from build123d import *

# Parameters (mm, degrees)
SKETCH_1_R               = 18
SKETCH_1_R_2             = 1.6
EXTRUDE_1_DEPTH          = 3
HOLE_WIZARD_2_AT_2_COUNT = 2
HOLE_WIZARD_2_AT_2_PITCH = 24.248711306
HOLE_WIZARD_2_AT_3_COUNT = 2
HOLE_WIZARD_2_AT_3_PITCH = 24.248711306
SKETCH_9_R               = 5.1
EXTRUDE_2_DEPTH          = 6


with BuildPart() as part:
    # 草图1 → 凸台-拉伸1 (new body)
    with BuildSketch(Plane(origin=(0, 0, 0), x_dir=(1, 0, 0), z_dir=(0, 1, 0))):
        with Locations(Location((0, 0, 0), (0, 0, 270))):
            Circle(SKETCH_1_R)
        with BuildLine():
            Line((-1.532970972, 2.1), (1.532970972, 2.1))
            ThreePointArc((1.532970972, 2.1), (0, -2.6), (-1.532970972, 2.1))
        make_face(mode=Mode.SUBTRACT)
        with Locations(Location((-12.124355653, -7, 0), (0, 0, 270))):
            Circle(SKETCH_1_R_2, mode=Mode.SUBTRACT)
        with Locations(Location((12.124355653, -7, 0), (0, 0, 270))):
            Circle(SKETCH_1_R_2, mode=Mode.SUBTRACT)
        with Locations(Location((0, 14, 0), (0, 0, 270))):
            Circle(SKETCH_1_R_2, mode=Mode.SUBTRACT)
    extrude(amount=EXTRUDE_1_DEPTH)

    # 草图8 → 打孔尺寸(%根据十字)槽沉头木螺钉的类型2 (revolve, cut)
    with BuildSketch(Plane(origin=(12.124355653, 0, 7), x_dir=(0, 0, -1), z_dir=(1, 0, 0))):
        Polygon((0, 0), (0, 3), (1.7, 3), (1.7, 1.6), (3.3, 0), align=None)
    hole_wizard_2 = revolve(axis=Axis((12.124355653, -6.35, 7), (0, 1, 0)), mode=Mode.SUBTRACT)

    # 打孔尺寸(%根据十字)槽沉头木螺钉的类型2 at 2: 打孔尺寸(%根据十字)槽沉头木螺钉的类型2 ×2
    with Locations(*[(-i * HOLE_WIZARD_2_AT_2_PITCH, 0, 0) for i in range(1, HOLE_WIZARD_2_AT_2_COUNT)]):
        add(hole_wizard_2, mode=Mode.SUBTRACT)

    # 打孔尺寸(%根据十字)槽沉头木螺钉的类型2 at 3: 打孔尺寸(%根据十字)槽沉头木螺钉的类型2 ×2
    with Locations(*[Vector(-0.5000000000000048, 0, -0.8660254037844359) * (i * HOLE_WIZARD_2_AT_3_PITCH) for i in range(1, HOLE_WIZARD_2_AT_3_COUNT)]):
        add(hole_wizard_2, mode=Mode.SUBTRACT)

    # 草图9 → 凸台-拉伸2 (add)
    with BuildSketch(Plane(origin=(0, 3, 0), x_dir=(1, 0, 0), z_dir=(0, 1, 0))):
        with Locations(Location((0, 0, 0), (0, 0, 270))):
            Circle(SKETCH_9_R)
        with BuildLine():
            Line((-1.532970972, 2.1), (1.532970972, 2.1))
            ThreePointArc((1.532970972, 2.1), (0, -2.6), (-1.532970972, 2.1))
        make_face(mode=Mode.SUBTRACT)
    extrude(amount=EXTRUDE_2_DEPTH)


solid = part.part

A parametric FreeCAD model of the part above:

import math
import FreeCAD as App
import Part
import Sketcher
from FreeCAD import Vector
Q = App.Units.Quantity

doc = App.newDocument("Part")
params = doc.addObject("Spreadsheet::Sheet", "Params")
for row, (alias, value) in enumerate([
    ("sketch1_diameter", "36 mm"),
    ("sketch1_diameter2", "3.2 mm"),
    ("sketch1_radius", "2.6 mm"),
    ("pad1_length", "3 mm"),
    ("sketch2_width", "3 mm"),
    ("sketch2_width2", "1.4 mm"),
    ("sketch2_height", "3.3 mm"),
    ("groove_angle", "360 deg"),
    ("linearpattern_pitch", "24.248711 mm"),
    ("linearpattern2_pitch", "24.248711 mm"),
    ("sketch3_diameter", "10.2 mm"),
    ("sketch3_radius", "2.6 mm"),
    ("pad2_length", "6 mm"),
], start=1):
    params.set(f"A{row}", alias)
    params.set(f"B{row}", "=" + value)
    params.setAlias(f"B{row}", alias)

body = doc.addObject("PartDesign::Body", "Body")

# Sketch on XZ plane
sketch1 = body.newObject("Sketcher::SketchObject", "Sketch")
sketch1.AttachmentSupport = (doc.getObject("XZ_Plane"), [""])
sketch1.MapMode = "FlatFace"
sketch1.addGeometry(Part.Circle(Vector(0, 0, 0), Vector(0, 0, 1), 18), False)
sketch1.addGeometry(Part.Circle(Vector(0, -14, 0), Vector(0, 0, 1), 1.6), False)
sketch1.addGeometry(Part.Circle(Vector(-12.124356, 7, 0), Vector(0, 0, 1), 1.6), False)
sketch1.addGeometry(Part.ArcOfCircle(Part.Circle(Vector(0, 0, 0), Vector(0, 0, 1), 2.6), math.radians(-53.871073), math.radians(233.871073)), False)
sketch1.addGeometry(Part.LineSegment(Vector(-1.532971, -2.1, 0), Vector(1.532971, -2.1, 0)), False)
sketch1.addGeometry(Part.Circle(Vector(12.124356, 7, 0), Vector(0, 0, 1), 1.6), False)
sketch1.addConstraint(Sketcher.Constraint("Coincident", 3, 1, 4, 2))
sketch1.addConstraint(Sketcher.Constraint("Coincident", 4, 1, 3, 2))
sketch1.addConstraint(Sketcher.Constraint("Horizontal", 4))
sketch1.addConstraint(Sketcher.Constraint("Coincident", 0, 3, -1, 1))
sketch1.addConstraint(Sketcher.Constraint("Coincident", 3, 3, -1, 1))
sketch1.addConstraint(Sketcher.Constraint("Equal", 1, 2))
sketch1.addConstraint(Sketcher.Constraint("Equal", 2, 5))
sketch1.addConstraint(Sketcher.Constraint("Symmetric", 2, 3, 5, 3, -2))
sketch1.addConstraint(Sketcher.Constraint("PointOnObject", 1, 3, -2))
sketch1.addConstraint(Sketcher.Constraint("Diameter", 0, Q("36 mm")))
sketch1.addConstraint(Sketcher.Constraint("Diameter", 1, Q("3.2 mm")))
sketch1.addConstraint(Sketcher.Constraint("Radius", 3, Q("2.6 mm")))
sketch1.addConstraint(Sketcher.Constraint("DistanceY", 1, 3, -1, 1, Q("14 mm")))
sketch1.addConstraint(Sketcher.Constraint("DistanceY", -1, 1, 2, 3, Q("7 mm")))
sketch1.addConstraint(Sketcher.Constraint("DistanceY", 3, 1, -1, 1, Q("2.1 mm")))
sketch1.addConstraint(Sketcher.Constraint("DistanceX", 2, 3, 5, 3, Q("24.248711 mm")))
sketch1.setExpression("Constraints[9]", "Params.sketch1_diameter")
sketch1.setExpression("Constraints[10]", "Params.sketch1_diameter2")
sketch1.setExpression("Constraints[11]", "Params.sketch1_radius")
pad1 = body.newObject("PartDesign::Pad", "Pad")
pad1.Profile = sketch1
pad1.setExpression("Length", "Params.pad1_length")
pad1.Reversed = True

# Sketch on YZ plane
sketch2 = body.newObject("Sketcher::SketchObject", "Sketch001")
sketch2.AttachmentSupport = (doc.getObject("YZ_Plane"), [""])
sketch2.MapMode = "FlatFace"
sketch2.AttachmentOffset = App.Placement(Vector(0, 0, 12.124356), App.Rotation())
sketch2.addGeometry(Part.LineSegment(Vector(3, 7, 0), Vector(0, 7, 0)), False)
sketch2.addGeometry(Part.LineSegment(Vector(0, 7, 0), Vector(0, 3.7, 0)), False)
sketch2.addGeometry(Part.LineSegment(Vector(0, 3.7, 0), Vector(1.6, 5.3, 0)), False)
sketch2.addGeometry(Part.LineSegment(Vector(1.6, 5.3, 0), Vector(3, 5.3, 0)), False)
sketch2.addGeometry(Part.LineSegment(Vector(3, 5.3, 0), Vector(3, 7, 0)), False)
sketch2.addGeometry(Part.LineSegment(Vector(0, 7, 0), Vector(3, 7, 0)), True)  # axis
sketch2.addConstraint(Sketcher.Constraint("Coincident", 0, 2, 1, 1))
sketch2.addConstraint(Sketcher.Constraint("Coincident", 1, 2, 2, 1))
sketch2.addConstraint(Sketcher.Constraint("Coincident", 2, 2, 3, 1))
sketch2.addConstraint(Sketcher.Constraint("Coincident", 3, 2, 4, 1))
sketch2.addConstraint(Sketcher.Constraint("Coincident", 4, 2, 0, 1))
sketch2.addConstraint(Sketcher.Constraint("Horizontal", 0))
sketch2.addConstraint(Sketcher.Constraint("Vertical", 1))
sketch2.addConstraint(Sketcher.Constraint("Horizontal", 3))
sketch2.addConstraint(Sketcher.Constraint("Vertical", 4))
sketch2.addConstraint(Sketcher.Constraint("Horizontal", 5))
sketch2.addConstraint(Sketcher.Constraint("Coincident", 5, 1, 0, 2))
sketch2.addConstraint(Sketcher.Constraint("PointOnObject", 0, 2, -2))
sketch2.addConstraint(Sketcher.Constraint("Vertical", 3, 2, 5, 2))
sketch2.addConstraint(Sketcher.Constraint("DistanceX", 0, 2, 0, 1, Q("3 mm")))
sketch2.addConstraint(Sketcher.Constraint("Angle", 2, Q("45 deg")))
sketch2.addConstraint(Sketcher.Constraint("DistanceX", 3, 1, 3, 2, Q("1.4 mm")))
sketch2.addConstraint(Sketcher.Constraint("DistanceY", 1, 2, 1, 1, Q("3.3 mm")))
sketch2.addConstraint(Sketcher.Constraint("DistanceY", -1, 1, 0, 2, Q("7 mm")))
sketch2.setExpression("Constraints[13]", "Params.sketch2_width")
sketch2.setExpression("Constraints[15]", "Params.sketch2_width2")
sketch2.setExpression("Constraints[16]", "Params.sketch2_height")
groove = body.newObject("PartDesign::Groove", "Groove")
groove.Profile = sketch2
groove.ReferenceAxis = (sketch2, ["Axis0"])
groove.setExpression("Angle", "Params.groove_angle")
doc.recompute()

linearpattern = body.newObject("PartDesign::LinearPattern", "LinearPattern")
linearpattern.Originals = [groove]
linearpattern.Direction = (doc.getObject("X_Axis"), [""])
linearpattern.Mode = "offset"
linearpattern.setExpression("Offset", "Params.linearpattern_pitch")
linearpattern.Occurrences = 2
linearpattern.Reversed = True
body.Tip = linearpattern
doc.recompute()

datumline = body.newObject("PartDesign::Line", "DatumLine")
datumline.Placement = App.Placement(Vector(0, 0, 0), App.Rotation(Vector(0, 0, 1), Vector(-0.5, 0, -0.866025404)))
linearpattern2 = body.newObject("PartDesign::LinearPattern", "LinearPattern001")
linearpattern2.Originals = [groove]
linearpattern2.Direction = (datumline, [""])
linearpattern2.Mode = "offset"
linearpattern2.setExpression("Offset", "Params.linearpattern2_pitch")
linearpattern2.Occurrences = 2
body.Tip = linearpattern2

# Sketch on XZ plane
sketch3 = body.newObject("Sketcher::SketchObject", "Sketch002")
sketch3.AttachmentSupport = (doc.getObject("XZ_Plane"), [""])
sketch3.MapMode = "FlatFace"
sketch3.AttachmentOffset = App.Placement(Vector(0, 0, -3), App.Rotation())
sketch3.addGeometry(Part.Circle(Vector(0, 0, 0), Vector(0, 0, 1), 5.1), False)
sketch3.addGeometry(Part.ArcOfCircle(Part.Circle(Vector(0, 0, 0), Vector(0, 0, 1), 2.6), math.radians(-53.871073), math.radians(233.871073)), False)
sketch3.addGeometry(Part.LineSegment(Vector(-1.532971, -2.1, 0), Vector(1.532971, -2.1, 0)), False)
sketch3.addConstraint(Sketcher.Constraint("Coincident", 1, 1, 2, 2))
sketch3.addConstraint(Sketcher.Constraint("Coincident", 2, 1, 1, 2))
sketch3.addConstraint(Sketcher.Constraint("Horizontal", 2))
sketch3.addConstraint(Sketcher.Constraint("Coincident", 0, 3, -1, 1))
sketch3.addConstraint(Sketcher.Constraint("Coincident", 1, 3, -1, 1))
sketch3.addConstraint(Sketcher.Constraint("Diameter", 0, Q("10.2 mm")))
sketch3.addConstraint(Sketcher.Constraint("Radius", 1, Q("2.6 mm")))
sketch3.addConstraint(Sketcher.Constraint("DistanceY", 1, 1, -1, 1, Q("2.1 mm")))
sketch3.setExpression("Constraints[5]", "Params.sketch3_diameter")
sketch3.setExpression("Constraints[6]", "Params.sketch3_radius")
pad2 = body.newObject("PartDesign::Pad", "Pad001")
pad2.Profile = sketch3
pad2.setExpression("Length", "Params.pad2_length")
pad2.Reversed = True

doc.recompute()
